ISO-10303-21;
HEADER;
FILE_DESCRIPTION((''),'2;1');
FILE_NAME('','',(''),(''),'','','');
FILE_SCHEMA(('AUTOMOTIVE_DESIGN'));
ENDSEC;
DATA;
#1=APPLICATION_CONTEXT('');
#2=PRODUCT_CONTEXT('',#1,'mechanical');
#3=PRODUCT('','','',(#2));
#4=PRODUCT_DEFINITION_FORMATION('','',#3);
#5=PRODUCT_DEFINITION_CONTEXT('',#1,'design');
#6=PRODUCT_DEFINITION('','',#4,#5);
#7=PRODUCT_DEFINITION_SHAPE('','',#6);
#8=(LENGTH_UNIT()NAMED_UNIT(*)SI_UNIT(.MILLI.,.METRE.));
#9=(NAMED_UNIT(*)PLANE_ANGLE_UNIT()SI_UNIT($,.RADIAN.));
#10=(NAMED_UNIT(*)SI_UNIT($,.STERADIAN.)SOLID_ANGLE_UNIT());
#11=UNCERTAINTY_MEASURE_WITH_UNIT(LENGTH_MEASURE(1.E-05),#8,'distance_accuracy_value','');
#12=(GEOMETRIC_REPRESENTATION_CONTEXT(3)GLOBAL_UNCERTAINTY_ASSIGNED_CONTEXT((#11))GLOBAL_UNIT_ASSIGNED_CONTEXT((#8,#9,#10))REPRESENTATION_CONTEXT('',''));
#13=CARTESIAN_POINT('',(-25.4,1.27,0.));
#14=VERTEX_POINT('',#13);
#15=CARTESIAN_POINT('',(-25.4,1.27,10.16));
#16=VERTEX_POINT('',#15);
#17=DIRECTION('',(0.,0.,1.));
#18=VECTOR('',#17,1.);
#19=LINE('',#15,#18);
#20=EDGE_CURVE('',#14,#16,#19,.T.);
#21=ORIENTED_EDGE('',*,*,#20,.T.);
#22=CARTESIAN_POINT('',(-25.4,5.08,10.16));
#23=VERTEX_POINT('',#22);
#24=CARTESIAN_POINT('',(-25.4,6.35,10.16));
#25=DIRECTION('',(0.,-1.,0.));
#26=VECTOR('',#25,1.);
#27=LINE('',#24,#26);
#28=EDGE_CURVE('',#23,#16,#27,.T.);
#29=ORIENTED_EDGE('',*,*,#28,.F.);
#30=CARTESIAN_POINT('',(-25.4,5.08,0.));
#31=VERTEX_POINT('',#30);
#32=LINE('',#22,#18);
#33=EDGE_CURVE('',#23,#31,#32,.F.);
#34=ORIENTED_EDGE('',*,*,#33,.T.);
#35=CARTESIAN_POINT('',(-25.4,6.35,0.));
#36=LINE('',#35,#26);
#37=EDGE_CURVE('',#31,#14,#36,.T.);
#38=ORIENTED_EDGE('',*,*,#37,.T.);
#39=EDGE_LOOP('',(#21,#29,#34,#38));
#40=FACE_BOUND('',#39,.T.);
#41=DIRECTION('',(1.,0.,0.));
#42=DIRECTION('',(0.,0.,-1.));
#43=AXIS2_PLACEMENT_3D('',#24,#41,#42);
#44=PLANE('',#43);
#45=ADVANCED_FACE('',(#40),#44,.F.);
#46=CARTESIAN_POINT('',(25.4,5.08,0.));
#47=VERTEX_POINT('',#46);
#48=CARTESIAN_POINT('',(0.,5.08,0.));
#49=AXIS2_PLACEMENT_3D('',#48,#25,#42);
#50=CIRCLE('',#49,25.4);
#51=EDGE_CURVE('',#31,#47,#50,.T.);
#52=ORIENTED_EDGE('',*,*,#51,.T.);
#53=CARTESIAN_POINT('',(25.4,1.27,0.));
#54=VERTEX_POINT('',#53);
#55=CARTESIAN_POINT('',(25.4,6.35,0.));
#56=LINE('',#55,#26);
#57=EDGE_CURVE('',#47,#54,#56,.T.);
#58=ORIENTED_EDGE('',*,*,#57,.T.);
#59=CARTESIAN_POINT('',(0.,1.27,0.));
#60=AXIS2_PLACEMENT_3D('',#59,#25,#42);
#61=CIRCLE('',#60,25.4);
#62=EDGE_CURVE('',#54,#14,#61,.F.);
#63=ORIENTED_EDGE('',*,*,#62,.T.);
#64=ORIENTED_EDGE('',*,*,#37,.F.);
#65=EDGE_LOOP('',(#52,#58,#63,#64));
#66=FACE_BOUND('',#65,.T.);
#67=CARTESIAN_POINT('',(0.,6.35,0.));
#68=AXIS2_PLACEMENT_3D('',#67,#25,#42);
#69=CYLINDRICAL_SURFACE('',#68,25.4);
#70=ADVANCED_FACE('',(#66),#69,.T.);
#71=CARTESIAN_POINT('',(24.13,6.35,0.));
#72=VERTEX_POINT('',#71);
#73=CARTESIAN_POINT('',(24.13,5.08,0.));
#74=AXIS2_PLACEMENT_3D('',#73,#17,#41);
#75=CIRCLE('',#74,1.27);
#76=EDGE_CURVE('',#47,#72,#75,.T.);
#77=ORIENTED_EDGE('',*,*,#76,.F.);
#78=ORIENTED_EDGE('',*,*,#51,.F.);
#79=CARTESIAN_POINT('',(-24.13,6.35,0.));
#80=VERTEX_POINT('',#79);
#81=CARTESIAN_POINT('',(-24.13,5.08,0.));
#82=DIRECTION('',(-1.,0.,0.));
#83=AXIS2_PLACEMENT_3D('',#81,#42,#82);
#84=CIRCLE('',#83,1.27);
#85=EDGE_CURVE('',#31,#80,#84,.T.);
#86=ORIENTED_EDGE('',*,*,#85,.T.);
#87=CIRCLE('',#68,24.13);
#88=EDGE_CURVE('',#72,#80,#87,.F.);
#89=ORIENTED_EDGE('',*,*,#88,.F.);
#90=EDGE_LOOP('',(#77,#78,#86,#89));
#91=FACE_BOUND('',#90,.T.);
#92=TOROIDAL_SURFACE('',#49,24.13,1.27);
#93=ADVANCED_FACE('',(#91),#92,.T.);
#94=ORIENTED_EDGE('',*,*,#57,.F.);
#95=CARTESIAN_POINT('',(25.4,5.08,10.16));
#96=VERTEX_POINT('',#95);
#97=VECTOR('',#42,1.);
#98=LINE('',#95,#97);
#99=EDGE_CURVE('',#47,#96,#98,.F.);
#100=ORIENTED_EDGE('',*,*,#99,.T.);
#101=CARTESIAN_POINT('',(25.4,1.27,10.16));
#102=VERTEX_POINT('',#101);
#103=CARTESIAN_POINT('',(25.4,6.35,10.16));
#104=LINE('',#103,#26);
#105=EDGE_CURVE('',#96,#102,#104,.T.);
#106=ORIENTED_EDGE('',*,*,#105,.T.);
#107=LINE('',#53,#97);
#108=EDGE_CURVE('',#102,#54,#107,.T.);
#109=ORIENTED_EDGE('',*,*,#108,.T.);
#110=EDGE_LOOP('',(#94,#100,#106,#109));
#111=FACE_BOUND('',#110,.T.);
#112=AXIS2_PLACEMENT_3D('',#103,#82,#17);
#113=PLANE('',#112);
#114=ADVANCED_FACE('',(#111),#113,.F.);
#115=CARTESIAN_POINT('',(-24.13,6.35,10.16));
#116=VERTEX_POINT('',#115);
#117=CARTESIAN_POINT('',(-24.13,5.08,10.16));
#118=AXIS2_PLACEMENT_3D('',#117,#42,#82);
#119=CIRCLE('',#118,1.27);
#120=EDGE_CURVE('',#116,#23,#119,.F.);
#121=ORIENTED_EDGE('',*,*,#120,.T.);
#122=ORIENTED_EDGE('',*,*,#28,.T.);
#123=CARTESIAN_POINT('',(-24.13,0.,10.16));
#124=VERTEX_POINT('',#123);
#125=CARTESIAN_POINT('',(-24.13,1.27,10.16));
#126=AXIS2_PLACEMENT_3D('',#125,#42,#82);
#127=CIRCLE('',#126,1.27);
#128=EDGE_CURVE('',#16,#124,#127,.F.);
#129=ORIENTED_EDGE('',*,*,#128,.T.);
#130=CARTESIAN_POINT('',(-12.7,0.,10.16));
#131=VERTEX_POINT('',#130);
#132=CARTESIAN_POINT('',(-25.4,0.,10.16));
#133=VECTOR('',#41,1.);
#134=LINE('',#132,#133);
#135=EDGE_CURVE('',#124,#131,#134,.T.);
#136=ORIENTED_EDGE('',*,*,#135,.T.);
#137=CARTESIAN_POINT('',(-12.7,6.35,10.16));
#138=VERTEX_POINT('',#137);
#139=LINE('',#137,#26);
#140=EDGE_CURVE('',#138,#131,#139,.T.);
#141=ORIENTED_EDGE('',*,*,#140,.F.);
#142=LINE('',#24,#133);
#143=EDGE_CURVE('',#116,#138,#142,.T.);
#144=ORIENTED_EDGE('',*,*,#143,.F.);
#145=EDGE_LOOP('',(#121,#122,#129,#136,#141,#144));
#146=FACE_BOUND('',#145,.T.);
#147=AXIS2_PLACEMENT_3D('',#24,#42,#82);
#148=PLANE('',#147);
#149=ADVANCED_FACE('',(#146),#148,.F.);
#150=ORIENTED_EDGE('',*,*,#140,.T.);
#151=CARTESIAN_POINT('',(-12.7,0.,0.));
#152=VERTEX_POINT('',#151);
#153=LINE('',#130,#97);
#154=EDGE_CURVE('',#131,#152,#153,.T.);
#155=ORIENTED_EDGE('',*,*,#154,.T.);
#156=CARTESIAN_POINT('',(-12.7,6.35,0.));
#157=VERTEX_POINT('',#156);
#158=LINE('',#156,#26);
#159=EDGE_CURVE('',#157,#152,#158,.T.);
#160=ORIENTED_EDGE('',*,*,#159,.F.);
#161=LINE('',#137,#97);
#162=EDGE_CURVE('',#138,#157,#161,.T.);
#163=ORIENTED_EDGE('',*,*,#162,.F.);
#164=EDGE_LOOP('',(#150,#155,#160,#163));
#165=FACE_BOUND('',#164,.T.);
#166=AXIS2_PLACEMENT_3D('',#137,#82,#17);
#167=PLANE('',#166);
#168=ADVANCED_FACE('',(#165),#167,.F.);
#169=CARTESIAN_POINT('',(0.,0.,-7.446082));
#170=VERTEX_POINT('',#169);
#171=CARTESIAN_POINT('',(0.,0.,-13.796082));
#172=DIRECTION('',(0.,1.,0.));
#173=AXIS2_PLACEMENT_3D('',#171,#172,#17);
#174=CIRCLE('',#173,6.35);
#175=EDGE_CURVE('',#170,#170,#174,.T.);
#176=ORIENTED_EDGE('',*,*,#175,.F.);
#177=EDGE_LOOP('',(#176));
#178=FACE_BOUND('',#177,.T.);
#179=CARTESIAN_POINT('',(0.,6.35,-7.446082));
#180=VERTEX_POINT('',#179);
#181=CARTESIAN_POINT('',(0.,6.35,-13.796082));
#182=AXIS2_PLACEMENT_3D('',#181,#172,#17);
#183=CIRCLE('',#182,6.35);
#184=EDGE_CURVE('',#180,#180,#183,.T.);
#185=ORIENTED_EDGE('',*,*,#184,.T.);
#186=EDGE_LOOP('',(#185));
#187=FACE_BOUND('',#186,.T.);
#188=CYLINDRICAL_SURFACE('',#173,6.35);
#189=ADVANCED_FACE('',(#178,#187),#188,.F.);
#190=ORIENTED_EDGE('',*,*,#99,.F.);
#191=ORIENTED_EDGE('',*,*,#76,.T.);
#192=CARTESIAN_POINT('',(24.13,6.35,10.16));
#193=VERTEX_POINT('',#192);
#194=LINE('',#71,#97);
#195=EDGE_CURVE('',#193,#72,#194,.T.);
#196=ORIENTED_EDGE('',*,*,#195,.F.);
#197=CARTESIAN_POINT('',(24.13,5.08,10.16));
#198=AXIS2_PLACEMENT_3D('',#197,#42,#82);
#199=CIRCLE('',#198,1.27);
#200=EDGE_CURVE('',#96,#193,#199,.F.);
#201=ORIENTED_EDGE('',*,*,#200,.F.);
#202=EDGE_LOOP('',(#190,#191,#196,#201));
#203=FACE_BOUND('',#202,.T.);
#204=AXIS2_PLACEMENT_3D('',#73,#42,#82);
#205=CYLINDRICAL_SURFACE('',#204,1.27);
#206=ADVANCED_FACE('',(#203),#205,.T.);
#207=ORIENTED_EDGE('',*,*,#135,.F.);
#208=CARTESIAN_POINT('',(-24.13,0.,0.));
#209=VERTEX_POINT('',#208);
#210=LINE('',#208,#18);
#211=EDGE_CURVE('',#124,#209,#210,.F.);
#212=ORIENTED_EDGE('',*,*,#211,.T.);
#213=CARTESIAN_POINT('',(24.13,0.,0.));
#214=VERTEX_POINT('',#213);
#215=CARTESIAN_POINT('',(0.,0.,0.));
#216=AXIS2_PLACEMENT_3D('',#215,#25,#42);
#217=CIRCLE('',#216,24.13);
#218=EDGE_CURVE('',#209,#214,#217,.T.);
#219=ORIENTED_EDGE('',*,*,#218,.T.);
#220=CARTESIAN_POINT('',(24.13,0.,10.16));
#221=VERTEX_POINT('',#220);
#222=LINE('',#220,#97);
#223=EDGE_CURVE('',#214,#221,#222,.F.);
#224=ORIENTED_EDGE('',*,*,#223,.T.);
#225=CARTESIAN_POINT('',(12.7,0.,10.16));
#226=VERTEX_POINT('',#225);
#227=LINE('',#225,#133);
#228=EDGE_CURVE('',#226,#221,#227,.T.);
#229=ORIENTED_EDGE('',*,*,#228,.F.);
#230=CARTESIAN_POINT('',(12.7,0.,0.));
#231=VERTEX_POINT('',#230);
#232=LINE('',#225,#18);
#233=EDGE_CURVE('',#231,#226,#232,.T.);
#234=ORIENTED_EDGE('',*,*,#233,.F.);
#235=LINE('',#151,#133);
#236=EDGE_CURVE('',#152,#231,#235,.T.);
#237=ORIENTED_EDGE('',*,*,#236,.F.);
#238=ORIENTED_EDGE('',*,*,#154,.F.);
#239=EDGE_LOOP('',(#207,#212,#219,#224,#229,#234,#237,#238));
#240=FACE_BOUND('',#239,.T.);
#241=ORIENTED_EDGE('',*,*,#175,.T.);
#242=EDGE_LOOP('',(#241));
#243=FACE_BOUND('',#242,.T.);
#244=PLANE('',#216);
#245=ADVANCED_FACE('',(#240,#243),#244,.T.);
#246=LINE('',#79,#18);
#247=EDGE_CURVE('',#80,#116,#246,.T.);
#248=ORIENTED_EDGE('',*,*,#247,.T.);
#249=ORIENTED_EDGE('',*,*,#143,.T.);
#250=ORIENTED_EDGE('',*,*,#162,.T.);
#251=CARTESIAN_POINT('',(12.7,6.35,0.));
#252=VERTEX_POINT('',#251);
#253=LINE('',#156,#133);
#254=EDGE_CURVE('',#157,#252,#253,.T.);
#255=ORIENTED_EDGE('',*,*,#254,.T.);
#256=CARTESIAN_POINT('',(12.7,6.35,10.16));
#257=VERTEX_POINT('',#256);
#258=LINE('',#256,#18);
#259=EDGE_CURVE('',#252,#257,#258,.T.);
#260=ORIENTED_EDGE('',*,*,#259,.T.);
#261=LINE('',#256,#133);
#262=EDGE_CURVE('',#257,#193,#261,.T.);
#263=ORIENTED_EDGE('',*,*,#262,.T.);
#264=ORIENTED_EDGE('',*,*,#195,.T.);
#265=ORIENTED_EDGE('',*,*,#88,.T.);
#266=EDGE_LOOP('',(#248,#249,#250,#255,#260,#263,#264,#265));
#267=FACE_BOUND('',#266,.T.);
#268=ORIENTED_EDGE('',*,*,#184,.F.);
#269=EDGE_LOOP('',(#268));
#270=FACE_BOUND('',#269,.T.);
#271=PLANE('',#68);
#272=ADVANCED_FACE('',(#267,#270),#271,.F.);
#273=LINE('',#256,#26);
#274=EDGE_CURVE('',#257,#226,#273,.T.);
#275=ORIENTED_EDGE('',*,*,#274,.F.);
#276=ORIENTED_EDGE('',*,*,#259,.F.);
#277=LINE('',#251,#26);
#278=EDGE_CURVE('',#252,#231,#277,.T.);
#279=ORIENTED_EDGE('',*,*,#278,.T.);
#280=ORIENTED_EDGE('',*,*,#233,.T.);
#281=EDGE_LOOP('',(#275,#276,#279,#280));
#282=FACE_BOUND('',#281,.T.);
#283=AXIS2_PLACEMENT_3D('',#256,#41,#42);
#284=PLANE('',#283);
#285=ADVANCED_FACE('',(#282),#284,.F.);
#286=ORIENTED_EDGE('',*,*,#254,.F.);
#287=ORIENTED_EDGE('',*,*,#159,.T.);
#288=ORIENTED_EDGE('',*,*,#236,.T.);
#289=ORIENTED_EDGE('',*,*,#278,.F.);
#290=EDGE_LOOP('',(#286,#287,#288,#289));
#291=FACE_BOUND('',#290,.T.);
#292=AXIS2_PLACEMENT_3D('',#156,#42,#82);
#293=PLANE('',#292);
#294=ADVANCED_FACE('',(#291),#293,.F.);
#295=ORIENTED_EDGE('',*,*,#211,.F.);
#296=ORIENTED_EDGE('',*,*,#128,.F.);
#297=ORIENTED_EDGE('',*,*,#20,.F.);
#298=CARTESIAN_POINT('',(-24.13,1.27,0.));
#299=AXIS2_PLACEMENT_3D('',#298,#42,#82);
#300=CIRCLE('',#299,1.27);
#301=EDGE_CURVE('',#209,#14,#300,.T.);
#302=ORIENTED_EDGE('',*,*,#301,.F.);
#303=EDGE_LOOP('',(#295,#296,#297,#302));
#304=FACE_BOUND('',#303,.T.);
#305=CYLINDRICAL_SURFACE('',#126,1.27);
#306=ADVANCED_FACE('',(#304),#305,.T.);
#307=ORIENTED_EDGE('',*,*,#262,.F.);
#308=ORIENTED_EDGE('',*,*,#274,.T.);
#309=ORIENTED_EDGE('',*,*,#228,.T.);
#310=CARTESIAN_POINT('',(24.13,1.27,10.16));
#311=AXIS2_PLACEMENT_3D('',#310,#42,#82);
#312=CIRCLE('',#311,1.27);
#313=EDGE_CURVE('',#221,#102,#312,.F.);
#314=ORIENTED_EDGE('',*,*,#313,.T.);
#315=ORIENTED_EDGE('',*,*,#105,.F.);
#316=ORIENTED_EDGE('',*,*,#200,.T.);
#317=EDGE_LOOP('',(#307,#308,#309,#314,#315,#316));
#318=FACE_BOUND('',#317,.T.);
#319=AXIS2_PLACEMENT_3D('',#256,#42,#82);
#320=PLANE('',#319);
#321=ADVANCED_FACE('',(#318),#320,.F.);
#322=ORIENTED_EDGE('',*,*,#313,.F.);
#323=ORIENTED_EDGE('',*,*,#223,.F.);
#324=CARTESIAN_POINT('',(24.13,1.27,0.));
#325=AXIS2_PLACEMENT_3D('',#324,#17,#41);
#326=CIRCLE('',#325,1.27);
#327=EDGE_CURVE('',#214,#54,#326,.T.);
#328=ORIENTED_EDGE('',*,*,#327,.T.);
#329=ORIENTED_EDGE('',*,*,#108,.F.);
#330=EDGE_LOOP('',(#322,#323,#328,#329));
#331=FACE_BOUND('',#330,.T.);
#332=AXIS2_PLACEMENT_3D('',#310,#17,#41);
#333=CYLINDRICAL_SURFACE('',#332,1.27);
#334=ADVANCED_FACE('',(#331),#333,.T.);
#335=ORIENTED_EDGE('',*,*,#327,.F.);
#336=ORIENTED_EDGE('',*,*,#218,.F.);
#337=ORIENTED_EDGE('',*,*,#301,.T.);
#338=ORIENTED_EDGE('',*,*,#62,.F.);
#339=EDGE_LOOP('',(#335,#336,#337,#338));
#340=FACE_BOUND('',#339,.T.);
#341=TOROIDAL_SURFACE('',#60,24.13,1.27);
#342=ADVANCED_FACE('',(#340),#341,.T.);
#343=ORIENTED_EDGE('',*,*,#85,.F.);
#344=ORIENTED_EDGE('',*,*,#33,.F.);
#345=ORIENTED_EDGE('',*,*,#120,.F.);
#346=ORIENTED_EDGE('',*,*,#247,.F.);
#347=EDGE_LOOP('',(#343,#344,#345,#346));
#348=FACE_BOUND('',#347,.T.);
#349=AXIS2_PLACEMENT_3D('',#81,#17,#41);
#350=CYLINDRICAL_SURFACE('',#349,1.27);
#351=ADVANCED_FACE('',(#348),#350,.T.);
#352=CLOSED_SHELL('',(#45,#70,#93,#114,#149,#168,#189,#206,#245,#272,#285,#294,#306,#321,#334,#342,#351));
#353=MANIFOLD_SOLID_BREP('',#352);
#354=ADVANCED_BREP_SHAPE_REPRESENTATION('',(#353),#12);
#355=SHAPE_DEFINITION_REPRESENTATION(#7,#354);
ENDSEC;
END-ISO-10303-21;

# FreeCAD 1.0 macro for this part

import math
import FreeCAD as App
import Part
import Sketcher

V = App.Vector
Q = App.Units.Quantity


def edges_at(feature, points):
    """Names of the edges that pass closest to the given points."""
    edges = feature.Shape.Edges
    near = lambda p: min(range(len(edges)), key=lambda i: edges[i].distToShape(Part.Vertex(*p))[0])
    return sorted({f"Edge{near(p) + 1}" for p in points})

doc = App.newDocument("Part")
body = doc.addObject("PartDesign::Body", "Body")

sketch1 = body.newObject("Sketcher::SketchObject", "Sketch")
sketch1.AttachmentSupport = (doc.getObject("XZ_Plane"), [""])
sketch1.MapMode = "FlatFace"
sketch1.addGeometry([
    Part.LineSegment(V(-25, 10, 0), V(-13, 10, 0)),
    Part.LineSegment(V(-13, 10, 0), V(-13, 0, 0)),
    Part.LineSegment(V(-13, 0, 0), V(13, 0, 0)),
    Part.LineSegment(V(13, 0, 0), V(13, 10, 0)),
    Part.LineSegment(V(13, 10, 0), V(25, 10, 0)),
    Part.LineSegment(V(25, 10, 0), V(25, 0, 0)),
    Part.ArcOfCircle(Part.Circle(V(0, 0, 0), V(0, 0, 1), 25), math.radians(180), math.radians(360)),
    Part.LineSegment(V(-25, 0, 0), V(-25, 10, 0)),
], False)
sketch1.addConstraint([
    Sketcher.Constraint("Coincident", 0, 2, 1, 1),
    Sketcher.Constraint("Coincident", 1, 2, 2, 1),
    Sketcher.Constraint("Coincident", 2, 2, 3, 1),
    Sketcher.Constraint("Coincident", 3, 2, 4, 1),
    Sketcher.Constraint("Coincident", 4, 2, 5, 1),
    Sketcher.Constraint("Tangent", 5, 2, 6, 2),
    Sketcher.Constraint("Tangent", 6, 1, 7, 1),
    Sketcher.Constraint("Coincident", 7, 2, 0, 1),
    Sketcher.Constraint("Horizontal", 0),
    Sketcher.Constraint("Vertical", 1),
    Sketcher.Constraint("Horizontal", 2),
    Sketcher.Constraint("Vertical", 3),
    Sketcher.Constraint("Horizontal", 4),
    Sketcher.Constraint("Vertical", 5),
    Sketcher.Constraint("Vertical", 7),
    Sketcher.Constraint("Coincident", 6, 3, -1, 1),
    Sketcher.Constraint("Symmetric", 1, 2, 2, 2, -1, 1),
    Sketcher.Constraint("Horizontal", 0, 2, 3, 2),
    Sketcher.Constraint("Radius", 6, Q("1 in")),
    Sketcher.Constraint("DistanceX", 2, 1, 2, 2, Q("1 in")),
    Sketcher.Constraint("DistanceY", 1, 2, 1, 1, Q("0.4 in")),
])
pad1 = body.newObject("PartDesign::Pad", "Pad")
pad1.Profile = sketch1
pad1.Length = Q("0.25 in")
pad1.Reversed = True
doc.recompute()

fillet = body.newObject("PartDesign::Fillet", "Fillet")
fillet.Base = (pad1, edges_at(pad1, [
    (-25.4, 0, 5.08),
    (0, 0, -25.4),
    (25.4, 6.35, 5.08),
    (0, 6.35, -25.4),
    (-25.4, 6.35, 5.08),
    (25.4, 0, 5.08),
]))
fillet.Radius = Q("0.05 in")

sketch2 = body.newObject("Sketcher::SketchObject", "Sketch001")
sketch2.AttachmentSupport = (doc.getObject("XZ_Plane"), [""])
sketch2.MapMode = "FlatFace"
sketch2.AttachmentOffset = App.Placement(V(0, 0, -0.25 * 25.4), App.Rotation())
sketch2.addGeometry(Part.Circle(V(0, -14, 0), V(0, 0, 1), 6), False)
sketch2.addConstraint([
    Sketcher.Constraint("PointOnObject", 0, 3, -2),
    Sketcher.Constraint("Diameter", 0, Q("0.5 in")),
    Sketcher.Constraint("DistanceY", 0, 3, -1, 1, 13.796082),
])
pocket1 = body.newObject("PartDesign::Pocket", "Pocket")
pocket1.Profile = sketch2
pocket1.Type = "ThroughAll"
pocket1.Reversed = True

doc.recompute()
